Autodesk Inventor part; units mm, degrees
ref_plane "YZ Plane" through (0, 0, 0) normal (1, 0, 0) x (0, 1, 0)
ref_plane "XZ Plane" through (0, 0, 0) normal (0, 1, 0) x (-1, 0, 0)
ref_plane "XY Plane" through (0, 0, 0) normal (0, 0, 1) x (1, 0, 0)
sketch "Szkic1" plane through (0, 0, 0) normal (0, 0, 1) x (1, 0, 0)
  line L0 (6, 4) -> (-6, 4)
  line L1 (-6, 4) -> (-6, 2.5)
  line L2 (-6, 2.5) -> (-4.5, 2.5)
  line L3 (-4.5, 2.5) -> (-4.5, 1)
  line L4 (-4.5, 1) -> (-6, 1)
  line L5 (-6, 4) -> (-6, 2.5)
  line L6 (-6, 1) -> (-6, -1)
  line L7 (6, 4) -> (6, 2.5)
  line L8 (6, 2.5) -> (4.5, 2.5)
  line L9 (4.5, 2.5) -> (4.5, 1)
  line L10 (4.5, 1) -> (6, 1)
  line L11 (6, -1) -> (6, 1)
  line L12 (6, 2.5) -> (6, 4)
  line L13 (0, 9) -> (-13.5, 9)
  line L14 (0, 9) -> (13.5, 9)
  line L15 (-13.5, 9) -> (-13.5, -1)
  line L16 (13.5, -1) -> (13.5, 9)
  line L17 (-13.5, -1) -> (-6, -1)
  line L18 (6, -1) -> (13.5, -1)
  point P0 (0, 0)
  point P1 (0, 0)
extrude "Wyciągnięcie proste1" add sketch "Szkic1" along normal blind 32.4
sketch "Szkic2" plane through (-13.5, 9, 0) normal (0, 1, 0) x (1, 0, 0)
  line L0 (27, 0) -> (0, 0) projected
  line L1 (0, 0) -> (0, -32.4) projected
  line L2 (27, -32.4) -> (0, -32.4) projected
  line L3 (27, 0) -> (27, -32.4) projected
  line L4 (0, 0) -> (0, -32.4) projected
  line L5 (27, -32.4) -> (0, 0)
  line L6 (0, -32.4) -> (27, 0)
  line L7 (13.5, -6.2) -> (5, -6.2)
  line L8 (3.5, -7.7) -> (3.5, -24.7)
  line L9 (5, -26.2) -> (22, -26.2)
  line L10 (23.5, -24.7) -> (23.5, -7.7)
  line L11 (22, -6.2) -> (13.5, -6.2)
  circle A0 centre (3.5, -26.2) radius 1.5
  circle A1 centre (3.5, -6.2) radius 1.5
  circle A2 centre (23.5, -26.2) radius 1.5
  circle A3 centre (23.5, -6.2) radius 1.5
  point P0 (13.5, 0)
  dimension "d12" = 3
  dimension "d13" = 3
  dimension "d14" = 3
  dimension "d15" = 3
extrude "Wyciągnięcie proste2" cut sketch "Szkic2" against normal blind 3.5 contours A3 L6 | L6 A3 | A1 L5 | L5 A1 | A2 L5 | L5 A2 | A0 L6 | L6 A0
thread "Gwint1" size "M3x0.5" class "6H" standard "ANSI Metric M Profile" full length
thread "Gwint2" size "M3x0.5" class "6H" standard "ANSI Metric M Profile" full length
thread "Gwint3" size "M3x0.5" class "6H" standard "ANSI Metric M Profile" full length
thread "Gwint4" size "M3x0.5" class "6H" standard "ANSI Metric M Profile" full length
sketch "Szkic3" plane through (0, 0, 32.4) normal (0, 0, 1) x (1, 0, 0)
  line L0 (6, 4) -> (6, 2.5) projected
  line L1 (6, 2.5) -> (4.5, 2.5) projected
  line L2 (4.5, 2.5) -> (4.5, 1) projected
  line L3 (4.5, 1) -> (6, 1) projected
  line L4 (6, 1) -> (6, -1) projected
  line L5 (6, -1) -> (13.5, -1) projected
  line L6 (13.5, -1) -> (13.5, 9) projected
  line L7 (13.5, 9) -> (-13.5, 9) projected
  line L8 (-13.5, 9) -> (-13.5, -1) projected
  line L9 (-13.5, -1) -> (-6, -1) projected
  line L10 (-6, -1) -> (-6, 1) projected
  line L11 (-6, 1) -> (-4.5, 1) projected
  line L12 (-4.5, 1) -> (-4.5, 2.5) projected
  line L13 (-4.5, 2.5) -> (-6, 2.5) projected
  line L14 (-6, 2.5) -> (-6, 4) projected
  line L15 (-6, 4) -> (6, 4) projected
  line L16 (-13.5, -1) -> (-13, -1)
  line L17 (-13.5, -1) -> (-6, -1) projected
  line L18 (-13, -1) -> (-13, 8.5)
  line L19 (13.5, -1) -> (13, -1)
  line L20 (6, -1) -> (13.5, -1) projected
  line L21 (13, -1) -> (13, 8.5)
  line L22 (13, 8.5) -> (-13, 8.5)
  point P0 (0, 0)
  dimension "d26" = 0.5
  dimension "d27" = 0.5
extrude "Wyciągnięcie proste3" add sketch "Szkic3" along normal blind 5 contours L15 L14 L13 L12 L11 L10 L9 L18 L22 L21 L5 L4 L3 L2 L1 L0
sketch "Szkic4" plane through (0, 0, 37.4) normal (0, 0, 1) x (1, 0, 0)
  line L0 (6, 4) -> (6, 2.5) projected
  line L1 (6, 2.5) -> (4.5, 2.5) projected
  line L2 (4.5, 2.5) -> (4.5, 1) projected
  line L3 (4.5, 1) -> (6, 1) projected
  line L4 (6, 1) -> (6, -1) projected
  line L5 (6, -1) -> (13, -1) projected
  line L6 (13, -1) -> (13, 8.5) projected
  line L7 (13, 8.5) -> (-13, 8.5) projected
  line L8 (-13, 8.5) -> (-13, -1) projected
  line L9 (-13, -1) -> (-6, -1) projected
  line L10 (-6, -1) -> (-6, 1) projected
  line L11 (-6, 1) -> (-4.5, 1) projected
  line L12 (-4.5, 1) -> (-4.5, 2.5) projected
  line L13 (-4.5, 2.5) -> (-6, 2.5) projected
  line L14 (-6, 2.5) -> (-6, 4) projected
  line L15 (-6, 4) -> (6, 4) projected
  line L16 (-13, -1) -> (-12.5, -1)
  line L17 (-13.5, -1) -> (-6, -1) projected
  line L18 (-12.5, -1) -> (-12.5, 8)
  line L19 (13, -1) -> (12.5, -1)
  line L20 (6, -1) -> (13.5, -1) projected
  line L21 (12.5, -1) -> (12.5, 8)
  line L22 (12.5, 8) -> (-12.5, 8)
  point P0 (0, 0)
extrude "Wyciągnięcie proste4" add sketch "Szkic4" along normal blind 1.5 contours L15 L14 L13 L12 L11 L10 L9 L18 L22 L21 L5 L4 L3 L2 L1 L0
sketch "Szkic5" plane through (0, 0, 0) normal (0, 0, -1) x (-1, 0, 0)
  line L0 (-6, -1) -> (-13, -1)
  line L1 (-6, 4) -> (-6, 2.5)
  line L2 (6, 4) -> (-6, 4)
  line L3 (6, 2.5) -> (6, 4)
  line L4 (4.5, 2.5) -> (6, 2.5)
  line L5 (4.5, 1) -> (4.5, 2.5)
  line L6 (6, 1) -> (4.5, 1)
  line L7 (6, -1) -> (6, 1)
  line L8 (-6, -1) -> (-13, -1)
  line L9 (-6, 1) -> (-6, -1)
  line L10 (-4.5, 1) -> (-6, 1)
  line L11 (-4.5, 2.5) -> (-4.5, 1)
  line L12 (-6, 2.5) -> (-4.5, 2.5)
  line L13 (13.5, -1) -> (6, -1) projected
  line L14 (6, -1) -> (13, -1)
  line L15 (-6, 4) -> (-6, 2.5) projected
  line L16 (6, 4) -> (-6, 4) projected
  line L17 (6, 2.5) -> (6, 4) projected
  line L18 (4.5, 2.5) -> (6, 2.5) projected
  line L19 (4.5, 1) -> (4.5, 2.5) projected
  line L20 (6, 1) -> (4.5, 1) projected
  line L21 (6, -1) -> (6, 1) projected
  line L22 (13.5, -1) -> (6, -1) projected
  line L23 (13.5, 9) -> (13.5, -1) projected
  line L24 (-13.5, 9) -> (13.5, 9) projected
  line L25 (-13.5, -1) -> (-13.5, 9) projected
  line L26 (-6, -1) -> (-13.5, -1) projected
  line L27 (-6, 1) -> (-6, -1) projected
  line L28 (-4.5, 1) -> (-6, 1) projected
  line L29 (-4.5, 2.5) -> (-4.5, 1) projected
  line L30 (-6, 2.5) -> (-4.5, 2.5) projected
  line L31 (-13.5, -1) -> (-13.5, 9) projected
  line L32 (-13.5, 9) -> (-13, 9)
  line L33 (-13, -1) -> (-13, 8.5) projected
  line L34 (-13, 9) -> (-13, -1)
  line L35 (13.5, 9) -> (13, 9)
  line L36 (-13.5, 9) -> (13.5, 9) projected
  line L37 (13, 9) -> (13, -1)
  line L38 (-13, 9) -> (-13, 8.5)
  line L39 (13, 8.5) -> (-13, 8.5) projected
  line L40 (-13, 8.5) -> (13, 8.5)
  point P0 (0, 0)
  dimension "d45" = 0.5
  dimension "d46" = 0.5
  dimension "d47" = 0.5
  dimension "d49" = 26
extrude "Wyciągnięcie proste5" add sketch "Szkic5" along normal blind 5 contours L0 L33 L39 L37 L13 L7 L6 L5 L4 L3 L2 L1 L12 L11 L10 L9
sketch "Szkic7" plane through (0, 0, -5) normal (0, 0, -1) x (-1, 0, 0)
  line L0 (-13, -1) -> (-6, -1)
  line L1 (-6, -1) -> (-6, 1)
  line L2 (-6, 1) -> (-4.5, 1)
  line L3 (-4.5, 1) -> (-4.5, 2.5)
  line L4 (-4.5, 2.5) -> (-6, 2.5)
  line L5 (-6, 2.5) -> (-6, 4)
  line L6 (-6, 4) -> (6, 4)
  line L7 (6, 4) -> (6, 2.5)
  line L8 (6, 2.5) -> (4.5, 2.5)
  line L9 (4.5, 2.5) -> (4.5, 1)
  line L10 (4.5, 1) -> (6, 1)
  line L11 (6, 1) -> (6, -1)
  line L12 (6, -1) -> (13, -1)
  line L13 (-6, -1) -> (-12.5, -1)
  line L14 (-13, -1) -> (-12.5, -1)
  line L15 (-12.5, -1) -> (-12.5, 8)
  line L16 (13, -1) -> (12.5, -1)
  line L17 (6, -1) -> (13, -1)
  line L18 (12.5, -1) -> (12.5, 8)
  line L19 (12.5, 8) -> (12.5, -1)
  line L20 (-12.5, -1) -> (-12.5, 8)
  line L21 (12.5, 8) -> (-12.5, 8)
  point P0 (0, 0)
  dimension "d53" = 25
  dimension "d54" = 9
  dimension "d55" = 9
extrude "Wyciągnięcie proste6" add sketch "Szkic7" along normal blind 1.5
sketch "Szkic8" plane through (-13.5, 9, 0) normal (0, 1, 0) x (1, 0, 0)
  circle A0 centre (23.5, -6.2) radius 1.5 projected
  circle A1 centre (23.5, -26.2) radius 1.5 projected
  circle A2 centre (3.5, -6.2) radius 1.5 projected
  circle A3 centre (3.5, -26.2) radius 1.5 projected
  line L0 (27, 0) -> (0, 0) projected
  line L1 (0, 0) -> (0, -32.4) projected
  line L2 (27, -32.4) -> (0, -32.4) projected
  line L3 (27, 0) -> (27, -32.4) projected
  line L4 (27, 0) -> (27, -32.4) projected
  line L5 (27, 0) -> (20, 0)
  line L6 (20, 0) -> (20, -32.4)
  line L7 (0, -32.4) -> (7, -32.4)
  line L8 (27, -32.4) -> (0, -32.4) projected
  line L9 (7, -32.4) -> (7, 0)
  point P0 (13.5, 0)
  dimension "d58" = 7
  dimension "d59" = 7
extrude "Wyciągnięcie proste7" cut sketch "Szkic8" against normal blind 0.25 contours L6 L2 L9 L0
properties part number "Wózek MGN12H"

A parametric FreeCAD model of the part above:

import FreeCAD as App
import Part
import Sketcher

V = App.Vector


def add_polygon(sketch, points):
    """Adds a closed chain of lines whose ends are joined by coincident constraints."""
    first, n = sketch.GeometryCount, len(points)
    for a, b in zip(points, points[1:] + points[:1]):
        sketch.addGeometry(Part.LineSegment(App.Vector(*a, 0), App.Vector(*b, 0)), False)
    for i in range(n):
        sketch.addConstraint(Sketcher.Constraint("Coincident", first + i, 2, first + (i + 1) % n, 1))

doc = App.newDocument("Part")
body = doc.addObject("PartDesign::Body", "Body")

# Sketch on XY plane
sketch1 = doc.addObject("Sketcher::SketchObject", "Sketch")
body.addObject(sketch1)
sketch1.AttachmentSupport = (doc.XY_Plane, [""])
sketch1.MapMode = "FlatFace"
add_polygon(sketch1, [(-6, 4), (6, 4), (6, 2.5), (4.5, 2.5), (4.5, 1), (6, 1), (6, -1), (13.5, -1), (13.5, 9), (-13.5, 9), (-13.5, -1), (-6, -1), (-6, 1), (-4.5, 1), (-4.5, 2.5), (-6, 2.5)])  # lines 0-15
sketch1.addConstraint(Sketcher.Constraint("Horizontal", 0))
sketch1.addConstraint(Sketcher.Constraint("Vertical", 1))
sketch1.addConstraint(Sketcher.Constraint("Horizontal", 2))
sketch1.addConstraint(Sketcher.Constraint("Vertical", 3))
sketch1.addConstraint(Sketcher.Constraint("Horizontal", 4))
sketch1.addConstraint(Sketcher.Constraint("Vertical", 5))
sketch1.addConstraint(Sketcher.Constraint("Horizontal", 6))
sketch1.addConstraint(Sketcher.Constraint("Vertical", 7))
sketch1.addConstraint(Sketcher.Constraint("Horizontal", 8))
sketch1.addConstraint(Sketcher.Constraint("Vertical", 9))
sketch1.addConstraint(Sketcher.Constraint("Horizontal", 10))
sketch1.addConstraint(Sketcher.Constraint("Vertical", 11))
sketch1.addConstraint(Sketcher.Constraint("Horizontal", 12))
sketch1.addConstraint(Sketcher.Constraint("Vertical", 13))
sketch1.addConstraint(Sketcher.Constraint("Horizontal", 14))
sketch1.addConstraint(Sketcher.Constraint("Vertical", 15))
sketch1.addConstraint(Sketcher.Constraint("Symmetric", 4, 2, 10, 2, -1, 1))
sketch1.addConstraint(Sketcher.Constraint("Symmetric", 6, 2, 9, 2, -2))
sketch1.addConstraint(Sketcher.Constraint("Symmetric", 3, 2, 12, 2, -2))
sketch1.addConstraint(Sketcher.Constraint("Symmetric", 1, 2, 14, 2, -2))
sketch1.addConstraint(Sketcher.Constraint("Vertical", 1, 2, 4, 2))
sketch1.addConstraint(Sketcher.Constraint("Equal", 14, 1))
sketch1.addConstraint(Sketcher.Constraint("Equal", 1, 3))
sketch1.addConstraint(Sketcher.Constraint("DistanceX", 0, 1, 0, 2, 12.0))
sketch1.addConstraint(Sketcher.Constraint("DistanceX", 8, 2, 8, 1, 27.0))
sketch1.addConstraint(Sketcher.Constraint("DistanceY", 5, 2, 5, 1, 2.0))
sketch1.addConstraint(Sketcher.Constraint("DistanceY", 7, 1, 7, 2, 10.0))
sketch1.addConstraint(Sketcher.Constraint("DistanceX", 2, 2, 2, 1, 1.5))
pad1 = doc.addObject("PartDesign::Pad", "Pad")
body.addObject(pad1)
pad1.Profile = sketch1
pad1.Length = 32.4

# Sketch on XZ plane
sketch2 = doc.addObject("Sketcher::SketchObject", "Sketch001")
body.addObject(sketch2)
sketch2.AttachmentSupport = (doc.XZ_Plane, [""])
sketch2.MapMode = "FlatFace"
sketch2.AttachmentOffset = App.Placement(V(0, 0, -9), App.Rotation())
sketch2.addGeometry(Part.Circle(V(10, 6.2, 0), V(0, 0, 1), 1.5), False)
sketch2.addGeometry(Part.Circle(V(-10, 6.2, 0), V(0, 0, 1), 1.5), False)
sketch2.addGeometry(Part.Circle(V(10, 26.2, 0), V(0, 0, 1), 1.5), False)
sketch2.addGeometry(Part.Circle(V(-10, 26.2, 0), V(0, 0, 1), 1.5), False)
sketch2.addConstraint(Sketcher.Constraint("Equal", 0, 1))
sketch2.addConstraint(Sketcher.Constraint("Equal", 1, 2))
sketch2.addConstraint(Sketcher.Constraint("Equal", 2, 3))
sketch2.addConstraint(Sketcher.Constraint("Symmetric", 0, 3, 1, 3, -2))
sketch2.addConstraint(Sketcher.Constraint("Symmetric", 2, 3, 3, 3, -2))
sketch2.addConstraint(Sketcher.Constraint("Vertical", 0, 3, 2, 3))
sketch2.addConstraint(Sketcher.Constraint("Diameter", 0, 3.0))
sketch2.addConstraint(Sketcher.Constraint("DistanceX", -1, 1, 0, 3, 10.0))
sketch2.addConstraint(Sketcher.Constraint("DistanceY", 0, 3, 2, 3, 20.0))
sketch2.addConstraint(Sketcher.Constraint("DistanceY", -1, 1, 0, 3, 6.2))
pocket1 = doc.addObject("PartDesign::Pocket", "Pocket")
body.addObject(pocket1)
pocket1.Profile = sketch2
pocket1.Length = 3.5
pocket1.Reversed = True

# Sketch on XY plane
sketch3 = doc.addObject("Sketcher::SketchObject", "Sketch002")
body.addObject(sketch3)
sketch3.AttachmentSupport = (doc.XY_Plane, [""])
sketch3.MapMode = "FlatFace"
sketch3.AttachmentOffset = App.Placement(V(0, 0, 32.4), App.Rotation())
add_polygon(sketch3, [(-6, 4), (6, 4), (6, 2.5), (4.5, 2.5), (4.5, 1), (6, 1), (6, -1), (13, -1), (13, 8.5), (-13, 8.5), (-13, -1), (-6, -1), (-6, 1), (-4.5, 1), (-4.5, 2.5), (-6, 2.5)])  # lines 0-15
sketch3.addConstraint(Sketcher.Constraint("Horizontal", 0))
sketch3.addConstraint(Sketcher.Constraint("Vertical", 1))
sketch3.addConstraint(Sketcher.Constraint("Horizontal", 2))
sketch3.addConstraint(Sketcher.Constraint("Vertical", 3))
sketch3.addConstraint(Sketcher.Constraint("Horizontal", 4))
sketch3.addConstraint(Sketcher.Constraint("Vertical", 5))
sketch3.addConstraint(Sketcher.Constraint("Horizontal", 6))
sketch3.addConstraint(Sketcher.Constraint("Vertical", 7))
sketch3.addConstraint(Sketcher.Constraint("Horizontal", 8))
sketch3.addConstraint(Sketcher.Constraint("Vertical", 9))
sketch3.addConstraint(Sketcher.Constraint("Horizontal", 10))
sketch3.addConstraint(Sketcher.Constraint("Vertical", 11))
sketch3.addConstraint(Sketcher.Constraint("Horizontal", 12))
sketch3.addConstraint(Sketcher.Constraint("Vertical", 13))
sketch3.addConstraint(Sketcher.Constraint("Horizontal", 14))
sketch3.addConstraint(Sketcher.Constraint("Vertical", 15))
sketch3.addConstraint(Sketcher.Constraint("Symmetric", 4, 2, 10, 2, -1, 1))
sketch3.addConstraint(Sketcher.Constraint("Symmetric", 6, 2, 9, 2, -2))
sketch3.addConstraint(Sketcher.Constraint("Symmetric", 3, 2, 12, 2, -2))
sketch3.addConstraint(Sketcher.Constraint("Symmetric", 1, 2, 14, 2, -2))
sketch3.addConstraint(Sketcher.Constraint("Vertical", 1, 2, 4, 2))
sketch3.addConstraint(Sketcher.Constraint("Equal", 14, 1))
sketch3.addConstraint(Sketcher.Constraint("Equal", 1, 3))
sketch3.addConstraint(Sketcher.Constraint("DistanceX", 0, 1, 0, 2, 12.0))
sketch3.addConstraint(Sketcher.Constraint("DistanceX", 6, 1, 6, 2, 7.0))
sketch3.addConstraint(Sketcher.Constraint("DistanceY", 5, 2, 5, 1, 2.0))
sketch3.addConstraint(Sketcher.Constraint("DistanceX", 2, 2, 2, 1, 1.5))
sketch3.addConstraint(Sketcher.Constraint("DistanceY", 7, 1, 7, 2, 9.5))
pad2 = doc.addObject("PartDesign::Pad", "Pad001")
body.addObject(pad2)
pad2.Profile = sketch3
pad2.Length = 5

# Sketch on XY plane
sketch4 = doc.addObject("Sketcher::SketchObject", "Sketch003")
body.addObject(sketch4)
sketch4.AttachmentSupport = (doc.XY_Plane, [""])
sketch4.MapMode = "FlatFace"
sketch4.AttachmentOffset = App.Placement(V(0, 0, 37.4), App.Rotation())
add_polygon(sketch4, [(-6, 4), (6, 4), (6, 2.5), (4.5, 2.5), (4.5, 1), (6, 1), (6, -1), (12.5, -1), (12.5, 8), (-12.5, 8), (-12.5, -1), (-6, -1), (-6, 1), (-4.5, 1), (-4.5, 2.5), (-6, 2.5)])  # lines 0-15
sketch4.addConstraint(Sketcher.Constraint("Horizontal", 0))
sketch4.addConstraint(Sketcher.Constraint("Vertical", 1))
sketch4.addConstraint(Sketcher.Constraint("Horizontal", 2))
sketch4.addConstraint(Sketcher.Constraint("Vertical", 3))
sketch4.addConstraint(Sketcher.Constraint("Horizontal", 4))
sketch4.addConstraint(Sketcher.Constraint("Vertical", 5))
sketch4.addConstraint(Sketcher.Constraint("Horizontal", 6))
sketch4.addConstraint(Sketcher.Constraint("Vertical", 7))
sketch4.addConstraint(Sketcher.Constraint("Horizontal", 8))
sketch4.addConstraint(Sketcher.Constraint("Vertical", 9))
sketch4.addConstraint(Sketcher.Constraint("Horizontal", 10))
sketch4.addConstraint(Sketcher.Constraint("Vertical", 11))
sketch4.addConstraint(Sketcher.Constraint("Horizontal", 12))
sketch4.addConstraint(Sketcher.Constraint("Vertical", 13))
sketch4.addConstraint(Sketcher.Constraint("Horizontal", 14))
sketch4.addConstraint(Sketcher.Constraint("Vertical", 15))
sketch4.addConstraint(Sketcher.Constraint("Symmetric", 4, 2, 10, 2, -1, 1))
sketch4.addConstraint(Sketcher.Constraint("Symmetric", 6, 2, 9, 2, -2))
sketch4.addConstraint(Sketcher.Constraint("Symmetric", 3, 2, 12, 2, -2))
sketch4.addConstraint(Sketcher.Constraint("Symmetric", 1, 2, 14, 2, -2))
sketch4.addConstraint(Sketcher.Constraint("Vertical", 1, 2, 4, 2))
sketch4.addConstraint(Sketcher.Constraint("Equal", 14, 1))
sketch4.addConstraint(Sketcher.Constraint("Equal", 1, 3))
sketch4.addConstraint(Sketcher.Constraint("DistanceX", 0, 1, 0, 2, 12.0))
sketch4.addConstraint(Sketcher.Constraint("DistanceX", 8, 2, 8, 1, 25.0))
sketch4.addConstraint(Sketcher.Constraint("DistanceY", 5, 2, 5, 1, 2.0))
sketch4.addConstraint(Sketcher.Constraint("DistanceY", 7, 1, 7, 2, 9.0))
sketch4.addConstraint(Sketcher.Constraint("DistanceX", 2, 2, 2, 1, 1.5))
pad3 = doc.addObject("PartDesign::Pad", "Pad002")
body.addObject(pad3)
pad3.Profile = sketch4
pad3.Length = 1.5

# Sketch on XY plane
sketch5 = doc.addObject("Sketcher::SketchObject", "Sketch004")
body.addObject(sketch5)
sketch5.AttachmentSupport = (doc.XY_Plane, [""])
sketch5.MapMode = "FlatFace"
add_polygon(sketch5, [(13, -1), (6, -1), (6, 1), (4.5, 1), (4.5, 2.5), (6, 2.5), (6, 4), (-6, 4), (-6, 2.5), (-4.5, 2.5), (-4.5, 1), (-6, 1), (-6, -1), (-13, -1), (-13, 8.5), (13, 8.5)])  # lines 0-15
sketch5.addConstraint(Sketcher.Constraint("Horizontal", 0))
sketch5.addConstraint(Sketcher.Constraint("Vertical", 1))
sketch5.addConstraint(Sketcher.Constraint("Horizontal", 2))
sketch5.addConstraint(Sketcher.Constraint("Vertical", 3))
sketch5.addConstraint(Sketcher.Constraint("Horizontal", 4))
sketch5.addConstraint(Sketcher.Constraint("Vertical", 5))
sketch5.addConstraint(Sketcher.Constraint("Horizontal", 6))
sketch5.addConstraint(Sketcher.Constraint("Vertical", 7))
sketch5.addConstraint(Sketcher.Constraint("Horizontal", 8))
sketch5.addConstraint(Sketcher.Constraint("Vertical", 9))
sketch5.addConstraint(Sketcher.Constraint("Horizontal", 10))
sketch5.addConstraint(Sketcher.Constraint("Vertical", 11))
sketch5.addConstraint(Sketcher.Constraint("Horizontal", 12))
sketch5.addConstraint(Sketcher.Constraint("Vertical", 13))
sketch5.addConstraint(Sketcher.Constraint("Horizontal", 14))
sketch5.addConstraint(Sketcher.Constraint("Vertical", 15))
sketch5.addConstraint(Sketcher.Constraint("Symmetric", 0, 2, 10, 2, -1, 1))
sketch5.addConstraint(Sketcher.Constraint("Symmetric", 4, 2, 7, 2, -2))
sketch5.addConstraint(Sketcher.Constraint("Symmetric", 2, 2, 9, 2, -2))
sketch5.addConstraint(Sketcher.Constraint("Symmetric", 12, 2, 15, 2, -2))
sketch5.addConstraint(Sketcher.Constraint("Vertical", 1, 2, 4, 2))
sketch5.addConstraint(Sketcher.Constraint("Equal", 10, 3))
sketch5.addConstraint(Sketcher.Constraint("Equal", 3, 5))
sketch5.addConstraint(Sketcher.Constraint("DistanceX", 14, 1, 14, 2, 26.0))
sketch5.addConstraint(Sketcher.Constraint("DistanceX", 0, 2, 0, 1, 7.0))
sketch5.addConstraint(Sketcher.Constraint("DistanceY", 1, 1, 1, 2, 2.0))
sketch5.addConstraint(Sketcher.Constraint("DistanceX", 2, 2, 2, 1, 1.5))
sketch5.addConstraint(Sketcher.Constraint("DistanceY", 13, 1, 13, 2, 9.5))
pad4 = doc.addObject("PartDesign::Pad", "Pad003")
body.addObject(pad4)
pad4.Profile = sketch5
pad4.Length = 5
pad4.Reversed = True

# Sketch on XY plane
sketch6 = doc.addObject("Sketcher::SketchObject", "Sketch005")
body.addObject(sketch6)
sketch6.AttachmentSupport = (doc.XY_Plane, [""])
sketch6.MapMode = "FlatFace"
sketch6.AttachmentOffset = App.Placement(V(0, 0, -5), App.Rotation())
add_polygon(sketch6, [(12.5, 8), (12.5, -1), (6, -1), (6, 1), (4.5, 1), (4.5, 2.5), (6, 2.5), (6, 4), (-6, 4), (-6, 2.5), (-4.5, 2.5), (-4.5, 1), (-6, 1), (-6, -1), (-12.5, -1), (-12.5, 8)])  # lines 0-15
sketch6.addConstraint(Sketcher.Constraint("Vertical", 0))
sketch6.addConstraint(Sketcher.Constraint("Horizontal", 1))
sketch6.addConstraint(Sketcher.Constraint("Vertical", 2))
sketch6.addConstraint(Sketcher.Constraint("Horizontal", 3))
sketch6.addConstraint(Sketcher.Constraint("Vertical", 4))
sketch6.addConstraint(Sketcher.Constraint("Horizontal", 5))
sketch6.addConstraint(Sketcher.Constraint("Vertical", 6))
sketch6.addConstraint(Sketcher.Constraint("Horizontal", 7))
sketch6.addConstraint(Sketcher.Constraint("Vertical", 8))
sketch6.addConstraint(Sketcher.Constraint("Horizontal", 9))
sketch6.addConstraint(Sketcher.Constraint("Vertical", 10))
sketch6.addConstraint(Sketcher.Constraint("Horizontal", 11))
sketch6.addConstraint(Sketcher.Constraint("Vertical", 12))
sketch6.addConstraint(Sketcher.Constraint("Horizontal", 13))
sketch6.addConstraint(Sketcher.Constraint("Vertical", 14))
sketch6.addConstraint(Sketcher.Constraint("Horizontal", 15))
sketch6.addConstraint(Sketcher.Constraint("Symmetric", 1, 2, 11, 2, -1, 1))
sketch6.addConstraint(Sketcher.Constraint("Symmetric", 5, 2, 8, 2, -2))
sketch6.addConstraint(Sketcher.Constraint("Symmetric", 3, 2, 10, 2, -2))
sketch6.addConstraint(Sketcher.Constraint("Symmetric", 0, 2, 13, 2, -2))
sketch6.addConstraint(Sketcher.Constraint("Vertical", 2, 2, 5, 2))
sketch6.addConstraint(Sketcher.Constraint("Equal", 11, 4))
sketch6.addConstraint(Sketcher.Constraint("Equal", 4, 6))
sketch6.addConstraint(Sketcher.Constraint("DistanceX", 15, 1, 15, 2, 25.0))
sketch6.addConstraint(Sketcher.Constraint("DistanceY", 0, 2, 0, 1, 9.0))
sketch6.addConstraint(Sketcher.Constraint("DistanceX", 9, 2, 4, 2, 9.0))
sketch6.addConstraint(Sketcher.Constraint("DistanceX", 7, 2, 7, 1, 12.0))
sketch6.addConstraint(Sketcher.Constraint("DistanceY", 2, 1, 2, 2, 2.0))
pad5 = doc.addObject("PartDesign::Pad", "Pad004")
body.addObject(pad5)
pad5.Profile = sketch6
pad5.Length = 1.5
pad5.Reversed = True

# Sketch on XZ plane
sketch7 = doc.addObject("Sketcher::SketchObject", "Sketch006")
body.addObject(sketch7)
sketch7.AttachmentSupport = (doc.XZ_Plane, [""])
sketch7.MapMode = "FlatFace"
sketch7.AttachmentOffset = App.Placement(V(0, 0, -9), App.Rotation())
add_polygon(sketch7, [(6, 32), (6, 0), (-6, 0), (-6, 32)])  # lines 0-3
sketch7.addConstraint(Sketcher.Constraint("Vertical", 0))
sketch7.addConstraint(Sketcher.Constraint("Horizontal", 1))
sketch7.addConstraint(Sketcher.Constraint("Vertical", 2))
sketch7.addConstraint(Sketcher.Constraint("Horizontal", 3))
sketch7.addConstraint(Sketcher.Constraint("Symmetric", 0, 2, 1, 2, -1, 1))
sketch7.addConstraint(Sketcher.Constraint("DistanceX", 1, 2, 1, 1, 13.0))
sketch7.addConstraint(Sketcher.Constraint("DistanceY", 0, 2, 0, 1, 32.4))
pocket2 = doc.addObject("PartDesign::Pocket", "Pocket001")
body.addObject(pocket2)
pocket2.Profile = sketch7
pocket2.Length = 0.25
pocket2.Reversed = True

doc.recompute()
